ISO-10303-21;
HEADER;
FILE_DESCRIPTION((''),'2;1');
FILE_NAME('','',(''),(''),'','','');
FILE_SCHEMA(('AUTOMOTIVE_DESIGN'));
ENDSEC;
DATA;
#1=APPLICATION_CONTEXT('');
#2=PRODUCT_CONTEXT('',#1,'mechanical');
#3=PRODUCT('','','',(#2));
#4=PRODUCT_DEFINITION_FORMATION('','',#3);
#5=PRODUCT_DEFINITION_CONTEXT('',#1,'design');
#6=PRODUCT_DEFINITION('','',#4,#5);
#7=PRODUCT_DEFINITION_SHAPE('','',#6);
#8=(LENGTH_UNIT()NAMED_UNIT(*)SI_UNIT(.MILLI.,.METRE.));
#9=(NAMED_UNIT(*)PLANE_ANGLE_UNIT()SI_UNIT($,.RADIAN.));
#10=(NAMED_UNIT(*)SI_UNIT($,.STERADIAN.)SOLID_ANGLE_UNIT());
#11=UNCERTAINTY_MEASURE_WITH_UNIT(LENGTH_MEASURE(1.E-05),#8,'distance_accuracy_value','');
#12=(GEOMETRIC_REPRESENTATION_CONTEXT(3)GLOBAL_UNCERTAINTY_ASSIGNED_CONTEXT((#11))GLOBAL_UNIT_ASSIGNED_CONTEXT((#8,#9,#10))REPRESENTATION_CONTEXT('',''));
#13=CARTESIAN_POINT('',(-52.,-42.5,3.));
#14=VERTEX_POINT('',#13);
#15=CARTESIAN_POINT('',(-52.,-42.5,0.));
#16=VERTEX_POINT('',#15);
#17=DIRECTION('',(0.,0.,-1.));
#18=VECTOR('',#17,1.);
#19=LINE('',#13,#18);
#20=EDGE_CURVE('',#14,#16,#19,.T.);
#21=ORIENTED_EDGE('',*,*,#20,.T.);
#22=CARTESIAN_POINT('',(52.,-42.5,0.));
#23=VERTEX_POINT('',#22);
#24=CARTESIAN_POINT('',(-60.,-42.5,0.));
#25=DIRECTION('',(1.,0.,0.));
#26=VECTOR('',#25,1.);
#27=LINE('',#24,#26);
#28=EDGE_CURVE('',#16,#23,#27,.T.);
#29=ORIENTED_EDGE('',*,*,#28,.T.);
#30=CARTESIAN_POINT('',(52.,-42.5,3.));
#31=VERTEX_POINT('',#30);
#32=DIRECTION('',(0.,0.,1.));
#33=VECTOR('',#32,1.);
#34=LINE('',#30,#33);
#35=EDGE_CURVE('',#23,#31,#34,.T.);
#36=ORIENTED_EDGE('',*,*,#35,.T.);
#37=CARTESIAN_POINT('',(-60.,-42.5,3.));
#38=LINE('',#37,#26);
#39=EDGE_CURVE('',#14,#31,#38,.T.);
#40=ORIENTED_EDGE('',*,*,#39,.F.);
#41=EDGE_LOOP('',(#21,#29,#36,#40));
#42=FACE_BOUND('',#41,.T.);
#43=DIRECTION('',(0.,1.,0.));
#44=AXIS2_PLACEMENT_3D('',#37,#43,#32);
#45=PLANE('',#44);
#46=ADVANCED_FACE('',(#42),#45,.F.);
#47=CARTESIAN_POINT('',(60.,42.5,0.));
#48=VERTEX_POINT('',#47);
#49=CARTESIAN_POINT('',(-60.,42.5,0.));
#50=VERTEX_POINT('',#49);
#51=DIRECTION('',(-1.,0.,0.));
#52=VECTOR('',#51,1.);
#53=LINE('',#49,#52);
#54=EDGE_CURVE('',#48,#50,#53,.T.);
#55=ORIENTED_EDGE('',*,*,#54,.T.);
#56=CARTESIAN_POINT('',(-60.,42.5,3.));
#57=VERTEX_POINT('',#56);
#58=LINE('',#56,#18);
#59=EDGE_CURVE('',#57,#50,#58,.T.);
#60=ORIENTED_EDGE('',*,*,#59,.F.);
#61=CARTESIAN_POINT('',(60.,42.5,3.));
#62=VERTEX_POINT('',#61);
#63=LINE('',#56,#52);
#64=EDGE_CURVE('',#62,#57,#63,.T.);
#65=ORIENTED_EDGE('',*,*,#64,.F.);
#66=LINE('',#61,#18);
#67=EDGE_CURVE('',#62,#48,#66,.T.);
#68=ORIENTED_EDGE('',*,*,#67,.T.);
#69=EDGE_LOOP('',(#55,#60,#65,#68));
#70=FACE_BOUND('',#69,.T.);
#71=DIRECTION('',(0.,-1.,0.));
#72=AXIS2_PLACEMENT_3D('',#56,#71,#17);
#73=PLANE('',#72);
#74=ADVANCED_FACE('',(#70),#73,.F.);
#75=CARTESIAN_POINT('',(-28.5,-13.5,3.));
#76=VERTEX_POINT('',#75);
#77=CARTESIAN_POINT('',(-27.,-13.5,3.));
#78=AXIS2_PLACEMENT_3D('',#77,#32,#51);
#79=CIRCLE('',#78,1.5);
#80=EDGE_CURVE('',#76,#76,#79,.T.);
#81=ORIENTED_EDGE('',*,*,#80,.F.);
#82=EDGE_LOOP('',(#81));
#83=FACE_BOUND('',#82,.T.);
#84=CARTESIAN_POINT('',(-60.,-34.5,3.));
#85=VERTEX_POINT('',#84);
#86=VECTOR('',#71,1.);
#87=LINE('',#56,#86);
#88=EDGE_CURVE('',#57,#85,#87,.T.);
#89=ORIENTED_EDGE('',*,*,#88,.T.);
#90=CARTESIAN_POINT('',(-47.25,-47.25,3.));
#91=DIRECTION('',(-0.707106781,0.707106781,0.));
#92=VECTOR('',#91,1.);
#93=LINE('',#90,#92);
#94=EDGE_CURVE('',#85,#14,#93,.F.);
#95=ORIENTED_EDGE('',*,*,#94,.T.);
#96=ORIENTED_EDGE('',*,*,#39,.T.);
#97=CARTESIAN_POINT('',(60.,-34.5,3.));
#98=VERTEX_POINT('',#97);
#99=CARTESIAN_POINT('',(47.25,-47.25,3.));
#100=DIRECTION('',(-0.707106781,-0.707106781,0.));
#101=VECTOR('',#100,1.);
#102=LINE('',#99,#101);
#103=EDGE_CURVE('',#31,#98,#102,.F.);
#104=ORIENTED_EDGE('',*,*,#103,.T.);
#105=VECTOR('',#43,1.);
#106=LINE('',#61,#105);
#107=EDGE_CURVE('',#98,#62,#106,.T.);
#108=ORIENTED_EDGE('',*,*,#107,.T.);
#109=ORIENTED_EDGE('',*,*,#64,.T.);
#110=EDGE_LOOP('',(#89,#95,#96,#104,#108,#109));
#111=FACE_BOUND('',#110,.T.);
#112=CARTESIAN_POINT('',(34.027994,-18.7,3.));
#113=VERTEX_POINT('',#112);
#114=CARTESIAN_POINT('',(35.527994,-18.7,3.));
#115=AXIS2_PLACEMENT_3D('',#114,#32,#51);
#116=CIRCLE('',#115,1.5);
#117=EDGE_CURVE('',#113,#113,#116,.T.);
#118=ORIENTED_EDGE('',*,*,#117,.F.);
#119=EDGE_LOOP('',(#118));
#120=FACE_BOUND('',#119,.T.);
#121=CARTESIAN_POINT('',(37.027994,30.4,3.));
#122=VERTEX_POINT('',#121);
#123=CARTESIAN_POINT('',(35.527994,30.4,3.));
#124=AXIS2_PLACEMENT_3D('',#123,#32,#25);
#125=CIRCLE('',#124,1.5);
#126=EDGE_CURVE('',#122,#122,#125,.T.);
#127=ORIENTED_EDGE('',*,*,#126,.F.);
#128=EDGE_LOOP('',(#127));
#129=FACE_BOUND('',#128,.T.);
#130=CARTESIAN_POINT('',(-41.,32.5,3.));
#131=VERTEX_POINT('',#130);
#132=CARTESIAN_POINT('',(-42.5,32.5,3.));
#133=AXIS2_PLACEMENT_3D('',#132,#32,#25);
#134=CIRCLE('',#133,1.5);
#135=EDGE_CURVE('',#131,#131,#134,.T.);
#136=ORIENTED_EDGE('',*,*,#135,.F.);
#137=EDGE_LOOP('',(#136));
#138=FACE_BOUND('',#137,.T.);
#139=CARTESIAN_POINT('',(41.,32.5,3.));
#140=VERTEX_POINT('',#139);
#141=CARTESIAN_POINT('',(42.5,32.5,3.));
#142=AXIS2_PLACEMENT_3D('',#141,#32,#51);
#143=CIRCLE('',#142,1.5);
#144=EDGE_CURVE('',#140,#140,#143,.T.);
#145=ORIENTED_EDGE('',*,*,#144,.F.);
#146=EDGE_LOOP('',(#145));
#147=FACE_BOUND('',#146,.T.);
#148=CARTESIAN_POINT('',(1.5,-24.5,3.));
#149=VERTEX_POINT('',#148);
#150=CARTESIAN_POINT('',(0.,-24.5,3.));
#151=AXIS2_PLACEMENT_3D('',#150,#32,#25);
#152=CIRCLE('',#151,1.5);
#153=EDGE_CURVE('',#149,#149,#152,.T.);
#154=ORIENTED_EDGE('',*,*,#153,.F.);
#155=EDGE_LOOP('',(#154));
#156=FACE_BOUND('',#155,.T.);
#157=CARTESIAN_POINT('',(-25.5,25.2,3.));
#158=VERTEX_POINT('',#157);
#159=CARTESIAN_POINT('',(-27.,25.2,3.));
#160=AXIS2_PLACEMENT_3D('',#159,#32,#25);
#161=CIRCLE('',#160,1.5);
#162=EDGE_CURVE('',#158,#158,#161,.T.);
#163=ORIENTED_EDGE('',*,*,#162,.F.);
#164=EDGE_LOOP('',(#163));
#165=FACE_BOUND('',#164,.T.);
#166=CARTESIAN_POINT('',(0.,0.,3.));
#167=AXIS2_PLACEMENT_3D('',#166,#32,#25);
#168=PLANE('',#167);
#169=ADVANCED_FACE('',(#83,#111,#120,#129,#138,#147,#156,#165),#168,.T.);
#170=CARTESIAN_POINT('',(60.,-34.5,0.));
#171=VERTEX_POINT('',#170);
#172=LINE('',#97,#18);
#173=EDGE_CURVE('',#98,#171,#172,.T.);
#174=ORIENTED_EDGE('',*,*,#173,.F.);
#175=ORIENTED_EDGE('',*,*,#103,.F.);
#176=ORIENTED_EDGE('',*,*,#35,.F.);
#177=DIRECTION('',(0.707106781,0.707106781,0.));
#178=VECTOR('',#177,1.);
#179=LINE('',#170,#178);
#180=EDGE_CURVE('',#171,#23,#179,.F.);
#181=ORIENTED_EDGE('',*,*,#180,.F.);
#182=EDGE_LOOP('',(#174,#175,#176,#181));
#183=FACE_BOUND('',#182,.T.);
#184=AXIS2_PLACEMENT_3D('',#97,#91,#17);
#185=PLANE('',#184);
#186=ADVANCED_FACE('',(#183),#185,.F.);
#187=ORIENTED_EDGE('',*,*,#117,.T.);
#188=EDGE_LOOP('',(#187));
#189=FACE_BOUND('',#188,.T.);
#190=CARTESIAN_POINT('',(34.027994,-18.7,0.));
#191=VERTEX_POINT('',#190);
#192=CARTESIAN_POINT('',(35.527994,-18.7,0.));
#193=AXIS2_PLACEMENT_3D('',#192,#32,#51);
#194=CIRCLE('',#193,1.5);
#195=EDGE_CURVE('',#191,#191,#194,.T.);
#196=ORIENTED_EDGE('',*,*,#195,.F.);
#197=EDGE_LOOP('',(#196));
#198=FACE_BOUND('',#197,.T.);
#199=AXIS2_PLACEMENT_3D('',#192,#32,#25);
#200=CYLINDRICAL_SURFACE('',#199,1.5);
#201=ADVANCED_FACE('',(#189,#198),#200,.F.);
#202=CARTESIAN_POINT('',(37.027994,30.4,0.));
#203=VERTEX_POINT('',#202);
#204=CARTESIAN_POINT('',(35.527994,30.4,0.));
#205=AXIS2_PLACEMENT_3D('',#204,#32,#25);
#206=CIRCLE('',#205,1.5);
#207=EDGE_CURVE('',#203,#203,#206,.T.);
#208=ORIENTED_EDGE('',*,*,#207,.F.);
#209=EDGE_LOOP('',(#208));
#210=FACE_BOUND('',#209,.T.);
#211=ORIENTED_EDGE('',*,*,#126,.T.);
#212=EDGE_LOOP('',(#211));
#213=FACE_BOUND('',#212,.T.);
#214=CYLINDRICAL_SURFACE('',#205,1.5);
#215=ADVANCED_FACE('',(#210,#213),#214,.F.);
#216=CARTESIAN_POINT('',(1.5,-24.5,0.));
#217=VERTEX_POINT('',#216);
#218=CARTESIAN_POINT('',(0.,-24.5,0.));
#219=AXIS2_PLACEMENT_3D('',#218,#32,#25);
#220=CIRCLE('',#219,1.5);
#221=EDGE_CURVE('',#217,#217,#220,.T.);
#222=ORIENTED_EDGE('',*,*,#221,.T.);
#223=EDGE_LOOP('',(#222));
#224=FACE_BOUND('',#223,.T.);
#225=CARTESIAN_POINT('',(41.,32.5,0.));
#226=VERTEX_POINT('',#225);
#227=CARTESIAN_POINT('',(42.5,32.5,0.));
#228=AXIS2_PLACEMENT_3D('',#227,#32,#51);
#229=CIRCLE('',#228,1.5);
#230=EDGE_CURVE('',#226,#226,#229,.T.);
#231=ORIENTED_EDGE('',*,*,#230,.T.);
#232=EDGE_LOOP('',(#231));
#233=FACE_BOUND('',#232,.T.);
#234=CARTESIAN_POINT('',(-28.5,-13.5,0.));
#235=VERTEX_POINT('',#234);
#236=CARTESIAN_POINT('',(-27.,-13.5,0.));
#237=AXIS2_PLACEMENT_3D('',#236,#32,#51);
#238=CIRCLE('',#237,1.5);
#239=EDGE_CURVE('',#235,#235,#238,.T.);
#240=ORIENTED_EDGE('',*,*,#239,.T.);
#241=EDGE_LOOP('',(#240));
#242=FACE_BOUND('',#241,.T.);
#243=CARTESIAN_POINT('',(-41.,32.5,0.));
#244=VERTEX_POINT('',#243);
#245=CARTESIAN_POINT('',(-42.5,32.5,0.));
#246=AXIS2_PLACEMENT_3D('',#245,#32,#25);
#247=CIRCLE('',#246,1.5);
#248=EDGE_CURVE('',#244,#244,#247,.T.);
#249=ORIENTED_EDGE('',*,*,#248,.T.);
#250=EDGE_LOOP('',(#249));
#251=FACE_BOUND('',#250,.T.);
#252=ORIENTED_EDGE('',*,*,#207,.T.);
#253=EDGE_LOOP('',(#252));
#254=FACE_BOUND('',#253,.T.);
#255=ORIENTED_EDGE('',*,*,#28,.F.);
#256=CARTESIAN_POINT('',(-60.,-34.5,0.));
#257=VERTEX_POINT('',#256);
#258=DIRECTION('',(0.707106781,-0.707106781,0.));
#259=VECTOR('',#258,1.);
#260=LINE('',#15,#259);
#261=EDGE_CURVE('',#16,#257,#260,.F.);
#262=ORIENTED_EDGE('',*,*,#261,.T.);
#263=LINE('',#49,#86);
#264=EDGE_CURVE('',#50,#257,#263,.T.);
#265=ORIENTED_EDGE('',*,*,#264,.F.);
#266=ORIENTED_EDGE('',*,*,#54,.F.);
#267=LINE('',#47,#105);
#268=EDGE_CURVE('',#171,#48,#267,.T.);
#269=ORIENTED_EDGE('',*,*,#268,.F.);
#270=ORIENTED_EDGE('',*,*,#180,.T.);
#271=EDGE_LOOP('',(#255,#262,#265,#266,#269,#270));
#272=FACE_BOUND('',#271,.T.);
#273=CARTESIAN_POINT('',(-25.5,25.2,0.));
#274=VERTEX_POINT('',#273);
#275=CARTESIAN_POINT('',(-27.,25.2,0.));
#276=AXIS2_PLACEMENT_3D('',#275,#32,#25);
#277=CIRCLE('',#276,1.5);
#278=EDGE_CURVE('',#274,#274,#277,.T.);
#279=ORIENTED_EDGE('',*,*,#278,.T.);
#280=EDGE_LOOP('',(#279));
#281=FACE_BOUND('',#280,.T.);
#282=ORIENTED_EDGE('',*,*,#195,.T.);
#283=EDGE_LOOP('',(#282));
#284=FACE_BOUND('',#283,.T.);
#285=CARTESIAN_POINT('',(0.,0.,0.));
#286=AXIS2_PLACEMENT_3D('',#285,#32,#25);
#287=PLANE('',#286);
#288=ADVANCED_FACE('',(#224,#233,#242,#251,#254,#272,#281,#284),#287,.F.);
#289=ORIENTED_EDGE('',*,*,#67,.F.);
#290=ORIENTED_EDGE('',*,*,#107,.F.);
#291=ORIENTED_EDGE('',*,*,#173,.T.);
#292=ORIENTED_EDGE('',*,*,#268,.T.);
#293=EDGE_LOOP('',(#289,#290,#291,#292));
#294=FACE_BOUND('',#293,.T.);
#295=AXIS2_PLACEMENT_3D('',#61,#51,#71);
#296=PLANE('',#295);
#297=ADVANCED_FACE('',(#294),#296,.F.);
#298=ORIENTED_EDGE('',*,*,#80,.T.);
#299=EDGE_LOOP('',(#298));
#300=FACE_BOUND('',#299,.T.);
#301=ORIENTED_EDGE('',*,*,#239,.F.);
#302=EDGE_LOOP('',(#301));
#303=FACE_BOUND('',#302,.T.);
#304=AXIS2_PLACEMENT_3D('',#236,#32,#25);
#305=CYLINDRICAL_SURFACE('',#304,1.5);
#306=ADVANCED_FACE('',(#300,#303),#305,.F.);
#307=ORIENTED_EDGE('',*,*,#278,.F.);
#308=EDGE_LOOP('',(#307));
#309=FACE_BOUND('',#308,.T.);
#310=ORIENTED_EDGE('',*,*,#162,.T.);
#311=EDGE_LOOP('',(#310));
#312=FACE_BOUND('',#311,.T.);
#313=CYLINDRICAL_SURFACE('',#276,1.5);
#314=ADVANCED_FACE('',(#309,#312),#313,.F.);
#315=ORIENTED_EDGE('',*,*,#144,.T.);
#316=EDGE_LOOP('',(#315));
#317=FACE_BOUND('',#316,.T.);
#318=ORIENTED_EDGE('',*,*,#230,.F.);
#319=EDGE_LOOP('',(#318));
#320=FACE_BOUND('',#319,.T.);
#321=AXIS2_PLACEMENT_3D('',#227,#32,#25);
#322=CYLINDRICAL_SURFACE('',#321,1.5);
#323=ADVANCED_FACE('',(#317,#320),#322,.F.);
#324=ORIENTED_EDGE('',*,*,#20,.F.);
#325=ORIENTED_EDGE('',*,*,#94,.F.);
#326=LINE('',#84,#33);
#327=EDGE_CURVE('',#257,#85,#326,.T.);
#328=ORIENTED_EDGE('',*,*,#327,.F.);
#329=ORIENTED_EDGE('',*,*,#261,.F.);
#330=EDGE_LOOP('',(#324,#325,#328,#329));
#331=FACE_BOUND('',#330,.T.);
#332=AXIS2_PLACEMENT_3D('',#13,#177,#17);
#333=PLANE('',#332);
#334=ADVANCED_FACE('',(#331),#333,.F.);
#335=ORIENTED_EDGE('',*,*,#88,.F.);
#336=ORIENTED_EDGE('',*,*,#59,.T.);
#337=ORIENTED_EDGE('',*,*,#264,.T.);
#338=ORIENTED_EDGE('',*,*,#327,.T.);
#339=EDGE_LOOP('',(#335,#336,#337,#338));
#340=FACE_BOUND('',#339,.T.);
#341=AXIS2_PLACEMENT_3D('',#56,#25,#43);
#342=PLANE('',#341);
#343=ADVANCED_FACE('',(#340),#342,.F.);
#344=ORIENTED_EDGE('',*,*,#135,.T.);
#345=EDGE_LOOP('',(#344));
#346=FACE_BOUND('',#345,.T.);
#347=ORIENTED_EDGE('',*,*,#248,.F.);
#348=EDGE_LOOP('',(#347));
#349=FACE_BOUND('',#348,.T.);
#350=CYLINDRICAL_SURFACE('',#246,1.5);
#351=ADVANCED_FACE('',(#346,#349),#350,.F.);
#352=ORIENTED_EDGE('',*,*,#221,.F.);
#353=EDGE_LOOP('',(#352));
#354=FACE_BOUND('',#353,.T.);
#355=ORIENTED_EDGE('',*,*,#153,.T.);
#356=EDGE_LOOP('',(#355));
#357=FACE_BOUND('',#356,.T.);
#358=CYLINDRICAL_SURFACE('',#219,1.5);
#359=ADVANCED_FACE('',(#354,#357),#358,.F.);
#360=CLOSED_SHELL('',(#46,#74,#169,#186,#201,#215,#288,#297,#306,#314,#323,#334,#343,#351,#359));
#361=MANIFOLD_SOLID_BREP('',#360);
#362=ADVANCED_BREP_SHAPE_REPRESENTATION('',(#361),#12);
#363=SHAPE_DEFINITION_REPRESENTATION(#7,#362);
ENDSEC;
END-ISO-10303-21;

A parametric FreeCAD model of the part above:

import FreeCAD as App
import Part
import Sketcher
Q = App.Units.Quantity


def edges_at(feature, points):
    """Names of the edges that pass closest to the given points."""
    edges = feature.Shape.Edges
    near = lambda p: min(range(len(edges)), key=lambda i: edges[i].distToShape(Part.Vertex(*p))[0])
    return sorted({f"Edge{near(p) + 1}" for p in points})

doc = App.newDocument("Part")
body = doc.addObject("PartDesign::Body", "Body")

# Sketch on XY plane
sketch1 = body.newObject("Sketcher::SketchObject", "Sketch")
sketch1.AttachmentSupport = (doc.getObject("XY_Plane"), [""])
sketch1.MapMode = "FlatFace"
sketch1.addGeometry([
    Part.LineSegment(App.Vector(-60, 42, 0), App.Vector(-60, -42, 0)),
    Part.LineSegment(App.Vector(-60, -42, 0), App.Vector(60, -42, 0)),
    Part.LineSegment(App.Vector(60, -42, 0), App.Vector(60, 42, 0)),
    Part.LineSegment(App.Vector(60, 42, 0), App.Vector(-60, 42, 0)),
], False)
sketch1.addConstraint([
    Sketcher.Constraint("Coincident", 0, 2, 1, 1),
    Sketcher.Constraint("Coincident", 1, 2, 2, 1),
    Sketcher.Constraint("Coincident", 2, 2, 3, 1),
    Sketcher.Constraint("Coincident", 3, 2, 0, 1),
    Sketcher.Constraint("Vertical", 0),
    Sketcher.Constraint("Horizontal", 1),
    Sketcher.Constraint("Vertical", 2),
    Sketcher.Constraint("Horizontal", 3),
    Sketcher.Constraint("Symmetric", 0, 2, 2, 2, -1, 1),
    Sketcher.Constraint("DistanceX", 1, 1, 1, 2, Q("120 mm")),
    Sketcher.Constraint("DistanceY", 0, 2, 0, 1, Q("85 mm")),
])
pad1 = body.newObject("PartDesign::Pad", "Pad")
pad1.Profile = sketch1
pad1.Length = 3

# Sketch on XY plane
sketch2 = body.newObject("Sketcher::SketchObject", "Sketch001")
sketch2.AttachmentSupport = (doc.getObject("XY_Plane"), [""])
sketch2.MapMode = "FlatFace"
sketch2.AttachmentOffset = App.Placement(App.Vector(0, 0, 3), App.Rotation())
sketch2.addGeometry([
    Part.Circle(App.Vector(0, -24.5, 0), App.Vector(0, 0, 1), 1.5),
    Part.Circle(App.Vector(-42.5, 32.5, 0), App.Vector(0, 0, 1), 1.5),
    Part.Circle(App.Vector(42.5, 32.5, 0), App.Vector(0, 0, 1), 1.5),
], False)
sketch2.addConstraint([
    Sketcher.Constraint("Equal", 0, 1),
    Sketcher.Constraint("Equal", 1, 2),
    Sketcher.Constraint("Symmetric", 1, 3, 2, 3, -2),
    Sketcher.Constraint("PointOnObject", 0, 3, -2),
    Sketcher.Constraint("Diameter", 0, Q("3 mm")),
    Sketcher.Constraint("DistanceY", 0, 3, 1, 3, Q("57 mm")),
    Sketcher.Constraint("DistanceX", 1, 3, 2, 3, Q("85 mm")),
    Sketcher.Constraint("DistanceY", 0, 3, -1, 1, Q("24.5 mm")),
])
pocket1 = body.newObject("PartDesign::Pocket", "Pocket")
pocket1.Profile = sketch2
pocket1.Type = "ThroughAll"

# Sketch on XY plane
sketch3 = body.newObject("Sketcher::SketchObject", "Sketch002")
sketch3.AttachmentSupport = (doc.getObject("XY_Plane"), [""])
sketch3.MapMode = "FlatFace"
sketch3.AttachmentOffset = App.Placement(App.Vector(0, 0, 3), App.Rotation())
sketch3.addGeometry([
    Part.Circle(App.Vector(35.5, 30.4, 0), App.Vector(0, 0, 1), 1.5),
    Part.Circle(App.Vector(-27, 25.2, 0), App.Vector(0, 0, 1), 1.5),
    Part.Circle(App.Vector(35.5, -18.7, 0), App.Vector(0, 0, 1), 1.5),
    Part.Circle(App.Vector(-27, -13.5, 0), App.Vector(0, 0, 1), 1.5),
], False)
sketch3.addConstraint([
    Sketcher.Constraint("Equal", 0, 1),
    Sketcher.Constraint("Equal", 1, 2),
    Sketcher.Constraint("Equal", 2, 3),
    Sketcher.Constraint("Vertical", 0, 3, 2, 3),
    Sketcher.Constraint("Vertical", 1, 3, 3, 3),
    Sketcher.Constraint("Diameter", 0, Q("3 mm")),
    Sketcher.Constraint("DistanceX", 1, 3, -1, 1, Q("27 mm")),
    Sketcher.Constraint("DistanceY", -1, 1, 0, 3, Q("30.4 mm")),
    Sketcher.Constraint("DistanceY", -1, 1, 1, 3, Q("25.2 mm")),
    Sketcher.Constraint("DistanceY", 2, 3, -1, 1, Q("18.7 mm")),
    Sketcher.Constraint("DistanceY", 3, 3, -1, 1, Q("13.5 mm")),
    Sketcher.Constraint("DistanceX", -1, 1, 0, 3, Q("35.527994 mm")),
])
pocket2 = body.newObject("PartDesign::Pocket", "Pocket001")
pocket2.Profile = sketch3
pocket2.Type = "ThroughAll"
doc.recompute()

chamfer = body.newObject("PartDesign::Chamfer", "Chamfer")
chamfer.Base = (pocket2, edges_at(pocket2, [(60, -42.5, 1.5), (-60, -42.5, 1.5)]))
chamfer.Size = 8

doc.recompute()
